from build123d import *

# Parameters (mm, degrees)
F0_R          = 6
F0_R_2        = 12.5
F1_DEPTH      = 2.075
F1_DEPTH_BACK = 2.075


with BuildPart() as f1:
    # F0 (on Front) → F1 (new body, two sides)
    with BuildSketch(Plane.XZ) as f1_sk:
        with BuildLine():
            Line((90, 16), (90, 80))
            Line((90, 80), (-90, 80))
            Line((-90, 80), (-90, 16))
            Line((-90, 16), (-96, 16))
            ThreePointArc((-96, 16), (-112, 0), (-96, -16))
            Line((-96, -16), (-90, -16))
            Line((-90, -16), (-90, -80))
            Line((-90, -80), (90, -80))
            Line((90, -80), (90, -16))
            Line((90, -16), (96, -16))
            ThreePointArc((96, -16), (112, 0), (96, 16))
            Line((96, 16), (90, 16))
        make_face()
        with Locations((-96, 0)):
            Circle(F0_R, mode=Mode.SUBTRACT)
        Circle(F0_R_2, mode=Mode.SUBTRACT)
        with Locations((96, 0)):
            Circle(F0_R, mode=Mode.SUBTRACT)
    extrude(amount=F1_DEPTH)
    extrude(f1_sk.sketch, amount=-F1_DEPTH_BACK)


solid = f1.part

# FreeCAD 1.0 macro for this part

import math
import FreeCAD as App
import Part
import Sketcher

V = App.Vector

doc = App.newDocument("Part")
body = doc.addObject("PartDesign::Body", "Body")

# Sketch on XZ plane
sketch1 = body.newObject("Sketcher::SketchObject", "Sketch")
sketch1.AttachmentSupport = (doc.getObject("XZ_Plane"), [""])
sketch1.MapMode = "FlatFace"
sketch1.addGeometry([
    Part.LineSegment(V(90, 16, 0), V(90, 80, 0)),  # 0
    Part.LineSegment(V(90, 80, 0), V(-90, 80, 0)),  # 1
    Part.LineSegment(V(-90, 80, 0), V(-90, 16, 0)),  # 2
    Part.LineSegment(V(-90, 16, 0), V(-96, 16, 0)),  # 3
    Part.ArcOfCircle(Part.Circle(V(-96, 0, 0), V(0, 0, 1), 16), math.radians(90), math.radians(270)),  # 4
    Part.LineSegment(V(-96, -16, 0), V(-90, -16, 0)),  # 5
    Part.LineSegment(V(-90, -16, 0), V(-90, -80, 0)),  # 6
    Part.LineSegment(V(-90, -80, 0), V(90, -80, 0)),  # 7
    Part.LineSegment(V(90, -80, 0), V(90, -16, 0)),  # 8
    Part.LineSegment(V(90, -16, 0), V(96, -16, 0)),  # 9
    Part.ArcOfCircle(Part.Circle(V(96, 0, 0), V(0, 0, 1), 16), math.radians(-90), math.radians(90)),  # 10
    Part.LineSegment(V(96, 16, 0), V(90, 16, 0)),  # 11
    Part.Circle(V(-96, 0, 0), V(0, 0, 1), 6),  # 12
    Part.Circle(V(0, 0, 0), V(0, 0, 1), 12),  # 13
    Part.Circle(V(96, 0, 0), V(0, 0, 1), 6),  # 14
], False)
sketch1.addConstraint([
    Sketcher.Constraint("Coincident", 0, 2, 1, 1),
    Sketcher.Constraint("Coincident", 1, 2, 2, 1),
    Sketcher.Constraint("Coincident", 2, 2, 3, 1),
    Sketcher.Constraint("Tangent", 3, 2, 4, 1),
    Sketcher.Constraint("Tangent", 4, 2, 5, 1),
    Sketcher.Constraint("Coincident", 5, 2, 6, 1),
    Sketcher.Constraint("Coincident", 6, 2, 7, 1),
    Sketcher.Constraint("Coincident", 7, 2, 8, 1),
    Sketcher.Constraint("Coincident", 8, 2, 9, 1),
    Sketcher.Constraint("Tangent", 9, 2, 10, 1),
    Sketcher.Constraint("Tangent", 10, 2, 11, 1),
    Sketcher.Constraint("Coincident", 11, 2, 0, 1),
    Sketcher.Constraint("Vertical", 0),
    Sketcher.Constraint("Horizontal", 1),
    Sketcher.Constraint("Vertical", 2),
    Sketcher.Constraint("Horizontal", 3),
    Sketcher.Constraint("Horizontal", 5),
    Sketcher.Constraint("Vertical", 6),
    Sketcher.Constraint("Horizontal", 7),
    Sketcher.Constraint("Vertical", 8),
    Sketcher.Constraint("Horizontal", 9),
    Sketcher.Constraint("Horizontal", 11),
    Sketcher.Constraint("Coincident", 13, 3, -1, 1),
    Sketcher.Constraint("Coincident", 12, 3, 4, 3),
    Sketcher.Constraint("Coincident", 14, 3, 10, 3),
    Sketcher.Constraint("Equal", 4, 10),
    Sketcher.Constraint("Equal", 12, 14),
    Sketcher.Constraint("Symmetric", 4, 3, 10, 3, -1, 1),
    Sketcher.Constraint("Symmetric", 0, 2, 6, 2, -1, 1),
    Sketcher.Constraint("Symmetric", 5, 2, 8, 2, -2),
    Sketcher.Constraint("Vertical", 2, 2, 5, 2),
    Sketcher.Constraint("Diameter", 12, 12.0),
    Sketcher.Constraint("Diameter", 13, 25.0),
    Sketcher.Constraint("Radius", 4, 16.0),
    Sketcher.Constraint("DistanceX", 1, 2, 1, 1, 180.0),
    Sketcher.Constraint("DistanceX", 3, 2, 3, 1, 6.0),
    Sketcher.Constraint("DistanceY", 0, 1, 0, 2, 64.0),
])
pad1 = body.newObject("PartDesign::Pad", "Pad")
pad1.Profile = sketch1
pad1.Type = "TwoLengths"
pad1.Length = 2.075
pad1.Length2 = 2.075

doc.recompute()
